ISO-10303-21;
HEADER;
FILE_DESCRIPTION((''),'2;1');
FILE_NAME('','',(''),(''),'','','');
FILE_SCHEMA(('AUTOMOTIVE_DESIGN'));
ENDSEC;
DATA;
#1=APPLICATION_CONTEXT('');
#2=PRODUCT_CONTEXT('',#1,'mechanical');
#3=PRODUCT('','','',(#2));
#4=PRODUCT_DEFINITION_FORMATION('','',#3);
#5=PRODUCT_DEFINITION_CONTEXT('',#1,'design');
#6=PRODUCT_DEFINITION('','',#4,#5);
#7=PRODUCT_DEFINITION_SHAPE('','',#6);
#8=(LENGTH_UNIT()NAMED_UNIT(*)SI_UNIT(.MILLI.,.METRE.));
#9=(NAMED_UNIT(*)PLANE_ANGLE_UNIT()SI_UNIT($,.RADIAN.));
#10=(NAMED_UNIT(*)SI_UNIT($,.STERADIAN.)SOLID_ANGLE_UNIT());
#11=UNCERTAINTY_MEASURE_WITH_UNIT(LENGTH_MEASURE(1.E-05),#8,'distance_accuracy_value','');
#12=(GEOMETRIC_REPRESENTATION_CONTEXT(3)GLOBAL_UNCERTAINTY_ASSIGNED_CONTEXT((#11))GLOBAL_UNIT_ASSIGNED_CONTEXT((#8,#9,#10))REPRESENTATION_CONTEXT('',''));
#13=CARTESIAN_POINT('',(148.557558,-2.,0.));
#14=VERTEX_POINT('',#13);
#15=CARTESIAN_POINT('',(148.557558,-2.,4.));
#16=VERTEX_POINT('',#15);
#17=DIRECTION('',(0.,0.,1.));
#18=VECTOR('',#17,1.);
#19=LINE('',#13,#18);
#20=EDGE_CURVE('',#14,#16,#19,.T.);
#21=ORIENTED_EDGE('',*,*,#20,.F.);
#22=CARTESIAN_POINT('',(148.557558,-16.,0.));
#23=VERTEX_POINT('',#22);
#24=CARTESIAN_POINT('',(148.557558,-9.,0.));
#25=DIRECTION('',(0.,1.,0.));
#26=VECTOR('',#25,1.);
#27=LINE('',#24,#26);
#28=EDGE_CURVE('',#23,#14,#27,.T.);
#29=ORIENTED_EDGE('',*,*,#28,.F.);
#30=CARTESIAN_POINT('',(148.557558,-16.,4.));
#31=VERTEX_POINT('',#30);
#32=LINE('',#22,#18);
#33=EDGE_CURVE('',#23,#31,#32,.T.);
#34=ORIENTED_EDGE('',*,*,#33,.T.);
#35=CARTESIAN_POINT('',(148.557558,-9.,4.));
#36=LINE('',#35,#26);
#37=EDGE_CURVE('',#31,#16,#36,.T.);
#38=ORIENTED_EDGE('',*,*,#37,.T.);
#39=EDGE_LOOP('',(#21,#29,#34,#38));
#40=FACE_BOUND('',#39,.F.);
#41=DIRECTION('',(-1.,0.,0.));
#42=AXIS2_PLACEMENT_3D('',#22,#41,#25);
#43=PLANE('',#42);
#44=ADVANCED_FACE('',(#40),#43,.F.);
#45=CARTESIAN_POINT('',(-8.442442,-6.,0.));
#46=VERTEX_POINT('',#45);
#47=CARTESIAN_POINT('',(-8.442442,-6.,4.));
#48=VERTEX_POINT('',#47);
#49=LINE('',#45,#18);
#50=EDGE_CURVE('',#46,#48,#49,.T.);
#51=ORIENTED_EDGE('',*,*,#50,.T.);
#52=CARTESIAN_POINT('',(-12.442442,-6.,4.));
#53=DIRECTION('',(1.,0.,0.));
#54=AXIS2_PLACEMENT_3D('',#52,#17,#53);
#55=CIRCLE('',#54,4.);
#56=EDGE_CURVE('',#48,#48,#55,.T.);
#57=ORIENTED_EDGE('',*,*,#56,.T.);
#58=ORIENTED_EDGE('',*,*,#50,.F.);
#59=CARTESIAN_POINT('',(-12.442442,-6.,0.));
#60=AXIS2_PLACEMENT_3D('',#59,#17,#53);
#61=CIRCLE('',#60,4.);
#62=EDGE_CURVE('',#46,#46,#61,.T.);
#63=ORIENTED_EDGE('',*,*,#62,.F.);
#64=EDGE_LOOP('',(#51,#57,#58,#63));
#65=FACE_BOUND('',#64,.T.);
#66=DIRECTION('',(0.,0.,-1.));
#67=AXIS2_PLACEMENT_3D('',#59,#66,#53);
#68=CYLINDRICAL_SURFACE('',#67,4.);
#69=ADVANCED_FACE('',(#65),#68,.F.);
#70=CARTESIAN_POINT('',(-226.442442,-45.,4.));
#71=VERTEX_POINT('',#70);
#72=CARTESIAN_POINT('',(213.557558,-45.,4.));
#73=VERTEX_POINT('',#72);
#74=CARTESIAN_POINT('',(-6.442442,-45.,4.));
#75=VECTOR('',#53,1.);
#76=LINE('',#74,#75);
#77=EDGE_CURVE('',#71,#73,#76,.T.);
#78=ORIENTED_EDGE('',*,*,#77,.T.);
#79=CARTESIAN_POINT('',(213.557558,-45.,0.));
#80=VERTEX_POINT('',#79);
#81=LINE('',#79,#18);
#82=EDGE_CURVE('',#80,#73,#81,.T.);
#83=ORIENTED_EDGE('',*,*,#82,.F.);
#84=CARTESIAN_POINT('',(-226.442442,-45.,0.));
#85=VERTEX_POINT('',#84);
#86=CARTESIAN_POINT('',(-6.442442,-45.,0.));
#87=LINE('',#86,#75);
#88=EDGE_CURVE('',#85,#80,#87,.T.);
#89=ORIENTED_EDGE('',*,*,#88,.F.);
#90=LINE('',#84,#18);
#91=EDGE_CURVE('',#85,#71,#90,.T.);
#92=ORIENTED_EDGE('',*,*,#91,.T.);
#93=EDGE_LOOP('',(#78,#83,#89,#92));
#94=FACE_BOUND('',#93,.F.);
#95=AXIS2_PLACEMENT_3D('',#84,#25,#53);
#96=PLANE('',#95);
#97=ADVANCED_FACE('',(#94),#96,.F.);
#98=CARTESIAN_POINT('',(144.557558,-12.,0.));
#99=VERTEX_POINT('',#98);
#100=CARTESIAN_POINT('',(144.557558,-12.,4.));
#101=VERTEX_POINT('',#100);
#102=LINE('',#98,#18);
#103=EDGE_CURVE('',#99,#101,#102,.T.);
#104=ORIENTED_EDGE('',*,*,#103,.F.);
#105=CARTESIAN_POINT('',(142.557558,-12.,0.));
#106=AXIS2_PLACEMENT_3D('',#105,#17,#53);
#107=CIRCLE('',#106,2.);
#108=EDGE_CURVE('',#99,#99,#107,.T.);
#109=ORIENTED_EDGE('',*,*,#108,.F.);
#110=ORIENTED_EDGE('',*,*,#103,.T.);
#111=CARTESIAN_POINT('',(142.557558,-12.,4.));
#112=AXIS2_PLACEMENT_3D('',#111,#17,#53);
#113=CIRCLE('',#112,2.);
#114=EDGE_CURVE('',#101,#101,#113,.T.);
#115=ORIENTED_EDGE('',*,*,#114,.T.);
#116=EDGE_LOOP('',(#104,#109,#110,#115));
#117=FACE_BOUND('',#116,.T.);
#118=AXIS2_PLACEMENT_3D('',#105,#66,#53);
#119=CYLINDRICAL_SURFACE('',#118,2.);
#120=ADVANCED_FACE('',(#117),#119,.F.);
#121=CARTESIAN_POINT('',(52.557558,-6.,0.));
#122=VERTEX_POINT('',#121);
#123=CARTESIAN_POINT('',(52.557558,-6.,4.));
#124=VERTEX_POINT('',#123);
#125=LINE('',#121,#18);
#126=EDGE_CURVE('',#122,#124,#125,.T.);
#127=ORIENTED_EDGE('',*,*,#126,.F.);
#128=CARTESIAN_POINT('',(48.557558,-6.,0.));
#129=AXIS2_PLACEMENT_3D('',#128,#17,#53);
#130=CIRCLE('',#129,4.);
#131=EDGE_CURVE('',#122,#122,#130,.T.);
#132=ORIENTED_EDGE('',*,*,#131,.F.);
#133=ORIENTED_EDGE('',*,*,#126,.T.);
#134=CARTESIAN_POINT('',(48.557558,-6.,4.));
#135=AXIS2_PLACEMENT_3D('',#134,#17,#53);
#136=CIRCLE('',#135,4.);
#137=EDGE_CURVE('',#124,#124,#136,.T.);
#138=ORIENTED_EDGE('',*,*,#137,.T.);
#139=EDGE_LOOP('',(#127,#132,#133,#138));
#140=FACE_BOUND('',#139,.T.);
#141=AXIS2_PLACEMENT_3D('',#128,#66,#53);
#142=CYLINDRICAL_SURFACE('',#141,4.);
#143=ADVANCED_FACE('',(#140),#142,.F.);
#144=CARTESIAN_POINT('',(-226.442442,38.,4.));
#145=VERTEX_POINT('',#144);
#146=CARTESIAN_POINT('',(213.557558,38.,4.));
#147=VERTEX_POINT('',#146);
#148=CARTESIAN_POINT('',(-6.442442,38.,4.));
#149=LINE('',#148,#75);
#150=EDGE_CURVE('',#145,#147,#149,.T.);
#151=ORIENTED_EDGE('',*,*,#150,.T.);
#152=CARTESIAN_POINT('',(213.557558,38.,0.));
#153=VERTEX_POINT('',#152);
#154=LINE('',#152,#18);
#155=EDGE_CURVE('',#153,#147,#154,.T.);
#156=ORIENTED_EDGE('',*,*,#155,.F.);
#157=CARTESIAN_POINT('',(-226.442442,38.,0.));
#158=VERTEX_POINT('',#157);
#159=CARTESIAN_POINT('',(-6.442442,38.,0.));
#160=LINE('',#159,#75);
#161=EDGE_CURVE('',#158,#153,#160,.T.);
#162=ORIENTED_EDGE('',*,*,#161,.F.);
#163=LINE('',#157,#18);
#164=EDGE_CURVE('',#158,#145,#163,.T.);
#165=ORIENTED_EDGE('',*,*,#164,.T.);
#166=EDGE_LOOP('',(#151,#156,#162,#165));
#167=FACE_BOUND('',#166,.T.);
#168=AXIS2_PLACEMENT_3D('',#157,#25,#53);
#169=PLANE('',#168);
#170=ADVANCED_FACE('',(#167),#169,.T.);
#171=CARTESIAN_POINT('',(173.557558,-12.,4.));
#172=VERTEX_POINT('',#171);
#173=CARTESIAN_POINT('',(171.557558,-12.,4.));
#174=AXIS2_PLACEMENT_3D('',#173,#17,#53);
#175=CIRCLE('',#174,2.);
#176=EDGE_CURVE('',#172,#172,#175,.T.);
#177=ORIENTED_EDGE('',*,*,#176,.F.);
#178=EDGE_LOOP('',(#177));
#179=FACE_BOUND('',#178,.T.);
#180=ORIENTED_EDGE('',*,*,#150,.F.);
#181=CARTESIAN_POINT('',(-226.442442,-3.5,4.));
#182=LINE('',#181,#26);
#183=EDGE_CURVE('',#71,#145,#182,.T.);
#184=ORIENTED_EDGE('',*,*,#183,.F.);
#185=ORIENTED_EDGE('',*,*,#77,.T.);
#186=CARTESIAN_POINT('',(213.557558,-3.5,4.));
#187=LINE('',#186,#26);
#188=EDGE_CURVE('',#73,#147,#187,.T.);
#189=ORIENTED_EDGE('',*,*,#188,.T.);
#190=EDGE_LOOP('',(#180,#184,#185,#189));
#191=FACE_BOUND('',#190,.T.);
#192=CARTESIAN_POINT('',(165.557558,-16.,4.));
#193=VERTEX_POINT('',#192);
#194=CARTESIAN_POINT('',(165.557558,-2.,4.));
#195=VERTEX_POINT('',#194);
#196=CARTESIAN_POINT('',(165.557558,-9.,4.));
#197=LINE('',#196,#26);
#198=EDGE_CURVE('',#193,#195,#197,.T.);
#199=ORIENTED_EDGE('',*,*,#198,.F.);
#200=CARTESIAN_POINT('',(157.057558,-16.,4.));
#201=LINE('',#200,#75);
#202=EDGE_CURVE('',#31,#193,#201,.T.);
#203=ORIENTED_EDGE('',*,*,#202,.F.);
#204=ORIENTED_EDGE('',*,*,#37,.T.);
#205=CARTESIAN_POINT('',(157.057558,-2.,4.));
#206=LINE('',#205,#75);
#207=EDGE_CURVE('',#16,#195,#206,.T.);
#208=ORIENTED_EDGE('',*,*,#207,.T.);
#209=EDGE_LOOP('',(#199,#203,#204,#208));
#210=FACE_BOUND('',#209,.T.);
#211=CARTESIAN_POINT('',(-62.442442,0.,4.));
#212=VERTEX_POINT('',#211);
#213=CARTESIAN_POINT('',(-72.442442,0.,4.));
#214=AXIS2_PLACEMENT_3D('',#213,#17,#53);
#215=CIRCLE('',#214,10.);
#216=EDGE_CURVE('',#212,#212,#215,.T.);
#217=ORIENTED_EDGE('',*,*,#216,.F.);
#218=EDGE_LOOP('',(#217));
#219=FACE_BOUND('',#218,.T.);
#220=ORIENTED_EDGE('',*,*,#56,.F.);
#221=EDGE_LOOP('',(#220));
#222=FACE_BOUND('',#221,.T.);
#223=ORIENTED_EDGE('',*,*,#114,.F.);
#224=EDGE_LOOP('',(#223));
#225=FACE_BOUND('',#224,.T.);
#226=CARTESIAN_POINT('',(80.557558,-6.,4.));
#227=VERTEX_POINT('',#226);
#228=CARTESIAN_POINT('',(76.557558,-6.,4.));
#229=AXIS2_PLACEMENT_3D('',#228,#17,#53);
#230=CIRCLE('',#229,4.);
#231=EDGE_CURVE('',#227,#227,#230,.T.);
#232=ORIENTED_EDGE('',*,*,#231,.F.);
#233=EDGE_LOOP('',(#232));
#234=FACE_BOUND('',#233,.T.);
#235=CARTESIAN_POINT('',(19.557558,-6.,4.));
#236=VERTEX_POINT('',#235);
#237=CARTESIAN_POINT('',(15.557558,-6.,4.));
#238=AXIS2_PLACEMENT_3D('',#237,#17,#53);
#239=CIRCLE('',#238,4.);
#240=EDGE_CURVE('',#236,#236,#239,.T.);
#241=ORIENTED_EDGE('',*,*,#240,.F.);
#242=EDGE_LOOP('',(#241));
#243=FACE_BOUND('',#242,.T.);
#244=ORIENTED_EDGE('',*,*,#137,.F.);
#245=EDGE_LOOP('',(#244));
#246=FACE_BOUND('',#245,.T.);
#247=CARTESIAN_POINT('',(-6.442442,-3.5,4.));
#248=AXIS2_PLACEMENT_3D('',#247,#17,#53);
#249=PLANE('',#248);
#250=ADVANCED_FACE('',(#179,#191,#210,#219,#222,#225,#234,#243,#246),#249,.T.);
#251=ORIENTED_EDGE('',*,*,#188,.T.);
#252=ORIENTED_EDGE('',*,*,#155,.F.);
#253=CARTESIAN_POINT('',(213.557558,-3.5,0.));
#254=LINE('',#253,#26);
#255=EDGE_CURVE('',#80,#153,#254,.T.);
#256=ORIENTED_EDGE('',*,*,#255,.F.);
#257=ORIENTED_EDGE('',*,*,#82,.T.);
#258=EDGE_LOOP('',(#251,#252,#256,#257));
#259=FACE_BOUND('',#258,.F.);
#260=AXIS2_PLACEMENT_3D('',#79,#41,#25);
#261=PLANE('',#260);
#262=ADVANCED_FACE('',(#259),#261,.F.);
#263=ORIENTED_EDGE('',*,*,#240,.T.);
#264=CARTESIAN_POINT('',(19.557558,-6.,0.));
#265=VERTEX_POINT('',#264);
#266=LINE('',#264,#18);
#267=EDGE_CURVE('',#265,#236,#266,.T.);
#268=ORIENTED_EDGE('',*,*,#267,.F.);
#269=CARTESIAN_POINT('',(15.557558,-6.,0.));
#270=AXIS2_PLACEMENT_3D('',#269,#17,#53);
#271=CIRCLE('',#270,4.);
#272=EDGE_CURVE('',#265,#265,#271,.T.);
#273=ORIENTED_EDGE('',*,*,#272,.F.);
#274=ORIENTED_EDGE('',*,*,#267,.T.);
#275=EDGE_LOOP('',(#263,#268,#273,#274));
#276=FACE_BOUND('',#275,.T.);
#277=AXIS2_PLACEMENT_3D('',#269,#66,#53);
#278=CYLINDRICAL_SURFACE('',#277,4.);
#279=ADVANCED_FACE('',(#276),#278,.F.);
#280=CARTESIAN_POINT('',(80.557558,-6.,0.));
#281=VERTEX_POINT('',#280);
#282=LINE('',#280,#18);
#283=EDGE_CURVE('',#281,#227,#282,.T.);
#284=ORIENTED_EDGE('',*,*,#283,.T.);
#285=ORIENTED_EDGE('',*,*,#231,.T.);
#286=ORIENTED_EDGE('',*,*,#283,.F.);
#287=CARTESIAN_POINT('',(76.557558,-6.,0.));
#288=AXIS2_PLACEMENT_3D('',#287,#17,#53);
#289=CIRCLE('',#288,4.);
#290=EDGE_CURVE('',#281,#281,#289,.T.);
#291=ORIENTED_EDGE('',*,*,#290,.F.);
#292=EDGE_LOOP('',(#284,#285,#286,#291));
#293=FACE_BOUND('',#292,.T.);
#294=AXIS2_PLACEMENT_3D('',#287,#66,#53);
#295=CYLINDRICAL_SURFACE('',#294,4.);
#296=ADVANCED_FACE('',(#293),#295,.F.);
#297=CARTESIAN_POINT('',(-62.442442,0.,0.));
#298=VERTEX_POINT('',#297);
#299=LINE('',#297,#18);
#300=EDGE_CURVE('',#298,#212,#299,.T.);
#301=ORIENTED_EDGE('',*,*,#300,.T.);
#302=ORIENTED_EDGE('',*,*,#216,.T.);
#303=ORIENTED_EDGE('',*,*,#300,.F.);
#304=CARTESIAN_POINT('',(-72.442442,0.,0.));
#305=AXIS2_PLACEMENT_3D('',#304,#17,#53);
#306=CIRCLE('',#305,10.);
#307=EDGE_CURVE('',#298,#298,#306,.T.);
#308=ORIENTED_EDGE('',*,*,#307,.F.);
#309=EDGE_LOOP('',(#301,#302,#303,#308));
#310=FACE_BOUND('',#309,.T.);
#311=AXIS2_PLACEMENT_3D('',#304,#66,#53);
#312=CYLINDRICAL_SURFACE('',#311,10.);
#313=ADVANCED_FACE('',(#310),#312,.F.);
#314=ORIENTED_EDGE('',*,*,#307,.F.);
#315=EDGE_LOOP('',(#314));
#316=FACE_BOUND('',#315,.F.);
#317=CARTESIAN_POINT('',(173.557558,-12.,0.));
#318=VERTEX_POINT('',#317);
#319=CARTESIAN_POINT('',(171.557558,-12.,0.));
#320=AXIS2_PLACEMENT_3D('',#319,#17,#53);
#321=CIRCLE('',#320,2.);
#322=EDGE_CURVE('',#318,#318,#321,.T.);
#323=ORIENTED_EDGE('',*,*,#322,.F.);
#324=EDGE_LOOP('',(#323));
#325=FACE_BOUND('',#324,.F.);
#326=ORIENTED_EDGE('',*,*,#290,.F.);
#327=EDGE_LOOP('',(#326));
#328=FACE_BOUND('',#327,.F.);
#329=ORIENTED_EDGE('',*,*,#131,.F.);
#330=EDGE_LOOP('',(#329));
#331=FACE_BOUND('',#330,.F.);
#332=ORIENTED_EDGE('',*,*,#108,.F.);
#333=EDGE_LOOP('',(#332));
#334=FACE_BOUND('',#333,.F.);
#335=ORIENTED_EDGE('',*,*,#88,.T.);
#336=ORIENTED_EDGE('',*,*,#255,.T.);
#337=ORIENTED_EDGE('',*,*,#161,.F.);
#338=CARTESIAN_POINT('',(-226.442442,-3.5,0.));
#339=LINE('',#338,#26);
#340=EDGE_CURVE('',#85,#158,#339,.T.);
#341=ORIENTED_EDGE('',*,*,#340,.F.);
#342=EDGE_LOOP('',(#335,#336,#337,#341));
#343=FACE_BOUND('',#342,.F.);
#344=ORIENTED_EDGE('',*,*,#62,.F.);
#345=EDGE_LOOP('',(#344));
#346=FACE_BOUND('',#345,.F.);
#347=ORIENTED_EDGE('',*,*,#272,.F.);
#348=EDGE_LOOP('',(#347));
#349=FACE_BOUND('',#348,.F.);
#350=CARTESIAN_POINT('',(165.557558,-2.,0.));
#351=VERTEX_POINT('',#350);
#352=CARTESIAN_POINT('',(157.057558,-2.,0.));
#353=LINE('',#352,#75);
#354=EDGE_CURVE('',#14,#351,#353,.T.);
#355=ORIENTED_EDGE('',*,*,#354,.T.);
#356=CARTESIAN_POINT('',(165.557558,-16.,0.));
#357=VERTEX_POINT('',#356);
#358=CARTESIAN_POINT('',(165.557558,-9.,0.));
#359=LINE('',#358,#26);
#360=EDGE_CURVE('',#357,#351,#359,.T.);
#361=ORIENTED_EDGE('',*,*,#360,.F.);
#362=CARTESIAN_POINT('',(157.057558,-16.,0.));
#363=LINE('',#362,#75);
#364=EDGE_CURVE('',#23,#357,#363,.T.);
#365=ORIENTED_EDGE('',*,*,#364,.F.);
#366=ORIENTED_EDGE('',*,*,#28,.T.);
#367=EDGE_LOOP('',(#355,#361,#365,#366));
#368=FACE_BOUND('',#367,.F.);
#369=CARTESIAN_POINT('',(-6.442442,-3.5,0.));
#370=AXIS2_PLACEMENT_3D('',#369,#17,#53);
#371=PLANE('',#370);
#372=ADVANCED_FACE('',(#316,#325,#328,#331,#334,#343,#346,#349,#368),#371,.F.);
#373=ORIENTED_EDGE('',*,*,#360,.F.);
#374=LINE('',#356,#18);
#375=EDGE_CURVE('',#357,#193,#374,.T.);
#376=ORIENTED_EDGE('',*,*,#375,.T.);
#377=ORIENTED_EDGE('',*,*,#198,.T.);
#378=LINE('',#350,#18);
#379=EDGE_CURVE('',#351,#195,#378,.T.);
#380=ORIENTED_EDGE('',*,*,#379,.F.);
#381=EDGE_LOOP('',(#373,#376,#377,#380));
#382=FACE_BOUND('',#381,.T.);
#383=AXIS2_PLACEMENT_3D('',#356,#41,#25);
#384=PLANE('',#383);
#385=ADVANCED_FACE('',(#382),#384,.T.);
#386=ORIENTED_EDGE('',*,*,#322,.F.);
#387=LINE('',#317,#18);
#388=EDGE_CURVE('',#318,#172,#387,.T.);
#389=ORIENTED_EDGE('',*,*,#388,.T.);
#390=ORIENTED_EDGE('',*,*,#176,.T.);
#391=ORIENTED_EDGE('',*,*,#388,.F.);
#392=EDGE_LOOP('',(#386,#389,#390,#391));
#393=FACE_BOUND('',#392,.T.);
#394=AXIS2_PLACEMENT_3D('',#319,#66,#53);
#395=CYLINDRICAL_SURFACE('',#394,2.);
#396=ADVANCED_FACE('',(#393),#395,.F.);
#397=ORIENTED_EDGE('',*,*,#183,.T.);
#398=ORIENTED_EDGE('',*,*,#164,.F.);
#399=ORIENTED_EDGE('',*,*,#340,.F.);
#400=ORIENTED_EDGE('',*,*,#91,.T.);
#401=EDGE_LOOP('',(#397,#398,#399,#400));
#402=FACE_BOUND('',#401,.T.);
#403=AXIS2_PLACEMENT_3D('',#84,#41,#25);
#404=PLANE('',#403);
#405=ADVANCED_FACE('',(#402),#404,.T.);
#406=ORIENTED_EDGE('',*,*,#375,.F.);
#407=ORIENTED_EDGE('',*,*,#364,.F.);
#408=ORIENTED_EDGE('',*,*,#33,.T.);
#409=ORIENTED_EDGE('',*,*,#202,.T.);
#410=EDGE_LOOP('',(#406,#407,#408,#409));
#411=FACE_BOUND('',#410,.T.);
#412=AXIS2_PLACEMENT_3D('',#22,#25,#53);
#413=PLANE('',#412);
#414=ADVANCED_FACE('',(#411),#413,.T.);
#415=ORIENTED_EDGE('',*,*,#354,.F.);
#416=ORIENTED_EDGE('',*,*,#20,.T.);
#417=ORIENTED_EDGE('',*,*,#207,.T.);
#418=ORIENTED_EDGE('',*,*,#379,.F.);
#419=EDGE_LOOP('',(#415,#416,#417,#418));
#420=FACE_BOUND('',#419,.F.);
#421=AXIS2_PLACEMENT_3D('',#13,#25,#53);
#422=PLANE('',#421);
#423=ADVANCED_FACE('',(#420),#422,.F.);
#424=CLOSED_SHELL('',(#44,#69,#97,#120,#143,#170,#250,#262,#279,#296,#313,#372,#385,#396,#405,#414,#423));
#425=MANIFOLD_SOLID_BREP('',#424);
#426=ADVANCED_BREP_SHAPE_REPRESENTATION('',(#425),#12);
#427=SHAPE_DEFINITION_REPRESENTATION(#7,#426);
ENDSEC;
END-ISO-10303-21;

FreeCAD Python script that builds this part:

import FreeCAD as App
import Part
import Sketcher
from FreeCAD import Vector

doc = App.newDocument("Part")
body = doc.addObject("PartDesign::Body", "Body")

sketch1 = body.newObject("Sketcher::SketchObject", "Sketch")
sketch1.AttachmentSupport = (doc.getObject("XY_Plane"), [""])
sketch1.MapMode = "FlatFace"
sketch1.addGeometry([
    Part.LineSegment(Vector(-226.4, 38, 0), Vector(-226.4, -45, 0)),
    Part.LineSegment(Vector(-226.4, -45, 0), Vector(213.6, -45, 0)),
    Part.LineSegment(Vector(213.6, -45, 0), Vector(213.6, 38, 0)),
    Part.LineSegment(Vector(213.6, 38, 0), Vector(-226.4, 38, 0)),
    Part.Circle(Vector(-12.4, -6, 0), Vector(0, 0, 1), 4),
    Part.Circle(Vector(15.6, -6, 0), Vector(0, 0, 1), 4),
    Part.Circle(Vector(142.6, -12, 0), Vector(0, 0, 1), 2),
    Part.Circle(Vector(171.6, -12, 0), Vector(0, 0, 1), 2),
    Part.Circle(Vector(48.6, -6, 0), Vector(0, 0, 1), 4),
    Part.Circle(Vector(76.6, -6, 0), Vector(0, 0, 1), 4),
    Part.LineSegment(Vector(165.6, -16, 0), Vector(148.6, -16, 0)),
    Part.LineSegment(Vector(148.6, -16, 0), Vector(148.6, -2, 0)),
    Part.LineSegment(Vector(148.6, -2, 0), Vector(165.6, -2, 0)),
    Part.LineSegment(Vector(165.6, -2, 0), Vector(165.6, -16, 0)),
    Part.Circle(Vector(-72.4, 0, 0), Vector(0, 0, 1), 10),
], False)
sketch1.addConstraint([
    Sketcher.Constraint("Coincident", 0, 2, 1, 1),
    Sketcher.Constraint("Coincident", 1, 2, 2, 1),
    Sketcher.Constraint("Coincident", 2, 2, 3, 1),
    Sketcher.Constraint("Coincident", 3, 2, 0, 1),
    Sketcher.Constraint("Coincident", 10, 2, 11, 1),
    Sketcher.Constraint("Coincident", 11, 2, 12, 1),
    Sketcher.Constraint("Coincident", 12, 2, 13, 1),
    Sketcher.Constraint("Coincident", 13, 2, 10, 1),
    Sketcher.Constraint("Vertical", 0),
    Sketcher.Constraint("Horizontal", 1),
    Sketcher.Constraint("Vertical", 2),
    Sketcher.Constraint("Horizontal", 3),
    Sketcher.Constraint("Horizontal", 10),
    Sketcher.Constraint("Vertical", 11),
    Sketcher.Constraint("Horizontal", 12),
    Sketcher.Constraint("Vertical", 13),
    Sketcher.Constraint("Equal", 4, 5),
    Sketcher.Constraint("Equal", 6, 7),
    Sketcher.Constraint("Equal", 5, 8),
    Sketcher.Constraint("Equal", 8, 9),
    Sketcher.Constraint("PointOnObject", 14, 3, -1),
    Sketcher.Constraint("Horizontal", 4, 3, 5, 3),
    Sketcher.Constraint("Horizontal", 6, 3, 7, 3),
    Sketcher.Constraint("Horizontal", 5, 3, 8, 3),
    Sketcher.Constraint("Horizontal", 8, 3, 9, 3),
    Sketcher.Constraint("Diameter", 4, 8.0),
    Sketcher.Constraint("Diameter", 6, 4.0),
    Sketcher.Constraint("Diameter", 14, 20.0),
    Sketcher.Constraint("DistanceX", 1, 1, 1, 2, 440.0),
    Sketcher.Constraint("DistanceX", 10, 2, 10, 1, 17.0),
    Sketcher.Constraint("DistanceY", 0, 2, 0, 1, 83.0),
    Sketcher.Constraint("DistanceY", 11, 1, 11, 2, 14.0),
    Sketcher.Constraint("DistanceY", 4, 3, -1, 1, 6.0),
    Sketcher.Constraint("DistanceY", 6, 3, -1, 1, 12.0),
    Sketcher.Constraint("DistanceY", 0, 2, -1, 1, 45.0),
    Sketcher.Constraint("DistanceY", 10, 2, -1, 1, 16.0),
    Sketcher.Constraint("DistanceX", 4, 3, 5, 3, 28.0),
    Sketcher.Constraint("DistanceX", 5, 3, 6, 3, 127.0),
    Sketcher.Constraint("DistanceX", 6, 3, 7, 3, 29.0),
    Sketcher.Constraint("DistanceX", 5, 3, 8, 3, 33.0),
    Sketcher.Constraint("DistanceX", 8, 3, 9, 3, 28.0),
    Sketcher.Constraint("DistanceX", 14, 3, 4, 3, 60.0),
    Sketcher.Constraint("DistanceX", 0, 2, 14, 3, 154.0),
    Sketcher.Constraint("DistanceX", 6, 3, 10, 2, 6.0),
    Sketcher.Constraint("DistanceX", -1, 1, 6, 3, 142.557558),
])
pad1 = body.newObject("PartDesign::Pad", "Pad")
pad1.Profile = sketch1
pad1.Length = 4

doc.recompute()
